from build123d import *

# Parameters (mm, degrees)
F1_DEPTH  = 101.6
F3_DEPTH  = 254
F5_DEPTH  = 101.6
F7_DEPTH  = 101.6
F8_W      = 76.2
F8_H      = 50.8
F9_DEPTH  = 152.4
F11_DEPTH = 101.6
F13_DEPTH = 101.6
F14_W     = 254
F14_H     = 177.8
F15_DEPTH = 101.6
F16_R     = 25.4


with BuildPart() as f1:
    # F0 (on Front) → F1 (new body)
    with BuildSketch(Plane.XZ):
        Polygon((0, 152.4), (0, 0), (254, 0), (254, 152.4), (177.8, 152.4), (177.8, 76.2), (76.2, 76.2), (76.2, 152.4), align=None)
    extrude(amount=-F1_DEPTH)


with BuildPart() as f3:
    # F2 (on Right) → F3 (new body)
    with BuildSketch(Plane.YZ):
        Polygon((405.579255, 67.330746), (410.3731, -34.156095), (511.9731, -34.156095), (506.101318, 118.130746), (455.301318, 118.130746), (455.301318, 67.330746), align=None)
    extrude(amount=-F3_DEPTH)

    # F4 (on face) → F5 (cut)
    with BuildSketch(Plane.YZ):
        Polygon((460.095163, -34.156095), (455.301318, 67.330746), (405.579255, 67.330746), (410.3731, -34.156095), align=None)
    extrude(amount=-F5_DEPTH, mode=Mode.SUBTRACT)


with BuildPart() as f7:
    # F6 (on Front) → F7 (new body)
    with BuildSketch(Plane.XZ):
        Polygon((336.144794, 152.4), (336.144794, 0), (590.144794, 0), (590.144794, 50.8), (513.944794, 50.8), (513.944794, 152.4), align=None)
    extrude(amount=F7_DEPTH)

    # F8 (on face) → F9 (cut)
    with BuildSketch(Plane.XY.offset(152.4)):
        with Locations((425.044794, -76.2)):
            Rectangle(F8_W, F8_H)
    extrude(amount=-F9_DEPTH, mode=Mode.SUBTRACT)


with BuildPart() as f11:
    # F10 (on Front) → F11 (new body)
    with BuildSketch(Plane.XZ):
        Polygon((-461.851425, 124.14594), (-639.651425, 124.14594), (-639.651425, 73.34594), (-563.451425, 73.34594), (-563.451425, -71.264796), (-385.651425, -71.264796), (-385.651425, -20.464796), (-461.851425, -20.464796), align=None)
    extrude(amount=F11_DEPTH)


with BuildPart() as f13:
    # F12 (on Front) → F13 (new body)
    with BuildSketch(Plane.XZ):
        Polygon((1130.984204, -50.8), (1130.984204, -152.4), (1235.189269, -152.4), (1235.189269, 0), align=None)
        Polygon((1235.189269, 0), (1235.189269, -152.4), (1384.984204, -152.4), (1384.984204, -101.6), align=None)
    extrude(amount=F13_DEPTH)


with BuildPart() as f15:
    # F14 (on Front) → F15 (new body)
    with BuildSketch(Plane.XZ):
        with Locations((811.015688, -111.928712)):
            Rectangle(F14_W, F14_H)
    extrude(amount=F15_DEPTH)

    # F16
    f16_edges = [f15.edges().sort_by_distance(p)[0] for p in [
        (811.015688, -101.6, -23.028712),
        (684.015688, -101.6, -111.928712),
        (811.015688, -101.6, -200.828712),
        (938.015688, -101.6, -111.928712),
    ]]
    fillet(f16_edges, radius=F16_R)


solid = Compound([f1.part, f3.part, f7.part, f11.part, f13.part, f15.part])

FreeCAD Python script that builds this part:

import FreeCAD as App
import Part
import Sketcher

V = App.Vector
Q = App.Units.Quantity


def edges_at(feature, points):
    """Names of the edges that pass closest to the given points."""
    edges = feature.Shape.Edges
    near = lambda p: min(range(len(edges)), key=lambda i: edges[i].distToShape(Part.Vertex(*p))[0])
    return sorted({f"Edge{near(p) + 1}" for p in points})


def add_polygon(sketch, points):
    """Adds a closed chain of lines whose ends are joined by coincident constraints."""
    first, n = sketch.GeometryCount, len(points)
    for a, b in zip(points, points[1:] + points[:1]):
        sketch.addGeometry(Part.LineSegment(App.Vector(*a, 0), App.Vector(*b, 0)), False)
    for i in range(n):
        sketch.addConstraint(Sketcher.Constraint("Coincident", first + i, 2, first + (i + 1) % n, 1))

doc = App.newDocument("Part")
body = doc.addObject("PartDesign::Body", "Body")

sketch1 = body.newObject("Sketcher::SketchObject", "Sketch")
sketch1.AttachmentSupport = (doc.getObject("XZ_Plane"), [""])
sketch1.MapMode = "FlatFace"
add_polygon(sketch1, [(0, 152), (0, 0), (254, 0), (254, 152), (178, 152), (178, 76), (76, 76), (76, 152)])
sketch1.addConstraint([
    Sketcher.Constraint("Vertical", 0),
    Sketcher.Constraint("Horizontal", 1),
    Sketcher.Constraint("Vertical", 2),
    Sketcher.Constraint("Horizontal", 3),
    Sketcher.Constraint("Vertical", 4),
    Sketcher.Constraint("Horizontal", 5),
    Sketcher.Constraint("Vertical", 6),
    Sketcher.Constraint("Horizontal", 7),
    Sketcher.Constraint("Coincident", 0, 2, -1, 1),
    Sketcher.Constraint("Horizontal", 3, 2, 6, 2),
    Sketcher.Constraint("Equal", 3, 7),
    Sketcher.Constraint("Equal", 7, 4),
    Sketcher.Constraint("DistanceX", 1, 1, 1, 2, Q("10 in")),
    Sketcher.Constraint("DistanceX", 3, 2, 3, 1, Q("3 in")),
    Sketcher.Constraint("DistanceY", 0, 2, 0, 1, Q("6 in")),
])
pad1 = body.newObject("PartDesign::Pad", "Pad")
pad1.Profile = sketch1
pad1.Length = Q("4 in")
pad1.Reversed = True
body2 = doc.addObject("PartDesign::Body", "Body001")

sketch2 = body2.newObject("Sketcher::SketchObject", "Sketch001")
sketch2.AttachmentSupport = (doc.getObject("YZ_Plane001"), [""])
sketch2.MapMode = "FlatFace"
add_polygon(sketch2, [(406, 67), (410, -34), (512, -34), (506, 118), (455, 118), (455, 67)])
sketch2.addConstraint([
    Sketcher.Constraint("Horizontal", 1),
    Sketcher.Constraint("Horizontal", 3),
    Sketcher.Constraint("Vertical", 4),
    Sketcher.Constraint("Horizontal", 5),
    Sketcher.Constraint("Equal", 3, 4),
    Sketcher.Constraint("DistanceX", 1, 1, 1, 2, Q("4 in")),
    Sketcher.Constraint("DistanceX", 3, 2, 3, 1, Q("2 in")),
    Sketcher.Constraint("Distance", 0, Q("4 in")),
    Sketcher.Constraint("Distance", 2, Q("6 in")),
    Sketcher.Constraint("DistanceX", -1, 1, 0, 2, Q("410.3731 mm")),
    Sketcher.Constraint("DistanceX", 5, 2, 5, 1, Q("49.722063 mm")),
    Sketcher.Constraint("DistanceY", 0, 2, -1, 1, Q("34.156095 mm")),
])
pad2 = body2.newObject("PartDesign::Pad", "Pad001")
pad2.Profile = sketch2
pad2.Length = Q("10 in")
pad2.Reversed = True

sketch3 = body2.newObject("Sketcher::SketchObject", "Sketch002")
sketch3.AttachmentSupport = (doc.getObject("YZ_Plane001"), [""])
sketch3.MapMode = "FlatFace"
add_polygon(sketch3, [(460, -34), (455, 67), (406, 67), (410, -34)])
sketch3.addConstraint([
    Sketcher.Constraint("Horizontal", 1),
    Sketcher.Constraint("Horizontal", 3),
    Sketcher.Constraint("Parallel", 0, 2),
    Sketcher.Constraint("Distance", 0, Q("4 in")),
    Sketcher.Constraint("DistanceX", -1, 1, 2, 2, Q("410.3731 mm")),
    Sketcher.Constraint("DistanceX", 1, 2, 1, 1, Q("49.722063 mm")),
    Sketcher.Constraint("DistanceX", -1, 1, 0, 2, Q("455.301318 mm")),
    Sketcher.Constraint("DistanceY", -1, 1, 0, 2, Q("67.330746 mm")),
])
pocket1 = body2.newObject("PartDesign::Pocket", "Pocket")
pocket1.Profile = sketch3
pocket1.Length = Q("4 in")
body3 = doc.addObject("PartDesign::Body", "Body002")

sketch4 = body3.newObject("Sketcher::SketchObject", "Sketch003")
sketch4.AttachmentSupport = (doc.getObject("XZ_Plane002"), [""])
sketch4.MapMode = "FlatFace"
add_polygon(sketch4, [(336, 152), (336, 0), (590, 0), (590, 51), (514, 51), (514, 152)])
sketch4.addConstraint([
    Sketcher.Constraint("Vertical", 0),
    Sketcher.Constraint("Horizontal", 1),
    Sketcher.Constraint("Vertical", 2),
    Sketcher.Constraint("Horizontal", 3),
    Sketcher.Constraint("Vertical", 4),
    Sketcher.Constraint("Horizontal", 5),
    Sketcher.Constraint("PointOnObject", 0, 2, -1),
    Sketcher.Constraint("DistanceX", 1, 1, 1, 2, Q("10 in")),
    Sketcher.Constraint("DistanceX", 3, 2, 3, 1, Q("3 in")),
    Sketcher.Constraint("DistanceY", 0, 2, 0, 1, Q("6 in")),
    Sketcher.Constraint("DistanceY", 2, 1, 2, 2, Q("2 in")),
    Sketcher.Constraint("DistanceX", -1, 1, 0, 2, Q("336.144794 mm")),
])
pad3 = body3.newObject("PartDesign::Pad", "Pad002")
pad3.Profile = sketch4
pad3.Length = Q("4 in")

sketch5 = body3.newObject("Sketcher::SketchObject", "Sketch004")
sketch5.AttachmentSupport = (doc.getObject("XY_Plane002"), [""])
sketch5.MapMode = "FlatFace"
sketch5.AttachmentOffset = App.Placement(V(0, 0, 6 * 25.4), App.Rotation())
add_polygon(sketch5, [(387, -51), (387, -102), (463, -102), (463, -51)])
sketch5.addConstraint([
    Sketcher.Constraint("Vertical", 0),
    Sketcher.Constraint("Horizontal", 1),
    Sketcher.Constraint("Vertical", 2),
    Sketcher.Constraint("Horizontal", 3),
    Sketcher.Constraint("DistanceX", 1, 1, 1, 2, Q("3 in")),
    Sketcher.Constraint("DistanceY", 0, 2, 0, 1, Q("2 in")),
    Sketcher.Constraint("DistanceY", 0, 2, -1, 1, Q("4 in")),
    Sketcher.Constraint("DistanceX", -1, 1, 0, 2, Q("386.944794 mm")),
])
pocket2 = body3.newObject("PartDesign::Pocket", "Pocket001")
pocket2.Profile = sketch5
pocket2.Length = Q("6 in")
body4 = doc.addObject("PartDesign::Body", "Body003")

sketch6 = body4.newObject("Sketcher::SketchObject", "Sketch005")
sketch6.AttachmentSupport = (doc.getObject("XZ_Plane003"), [""])
sketch6.MapMode = "FlatFace"
add_polygon(sketch6, [(-462, 124), (-640, 124), (-640, 73), (-563, 73), (-563, -71), (-386, -71), (-386, -20), (-462, -20)])
sketch6.addConstraint([
    Sketcher.Constraint("Horizontal", 0),
    Sketcher.Constraint("Vertical", 1),
    Sketcher.Constraint("Horizontal", 2),
    Sketcher.Constraint("Vertical", 3),
    Sketcher.Constraint("Horizontal", 4),
    Sketcher.Constraint("Vertical", 5),
    Sketcher.Constraint("Horizontal", 6),
    Sketcher.Constraint("Vertical", 7),
    Sketcher.Constraint("Equal", 0, 4),
    Sketcher.Constraint("Equal", 1, 5),
    Sketcher.Constraint("DistanceX", 0, 2, 0, 1, Q("7 in")),
    Sketcher.Constraint("DistanceX", 2, 1, 2, 2, Q("3 in")),
    Sketcher.Constraint("DistanceY", 1, 2, 1, 1, Q("2 in")),
    Sketcher.Constraint("DistanceY", 3, 2, 3, 1, Q("144.610736 mm")),
    Sketcher.Constraint("DistanceY", -1, 1, 0, 2, Q("124.14594 mm")),
    Sketcher.Constraint("DistanceX", 0, 2, -1, 1, Q("639.651425 mm")),
])
pad4 = body4.newObject("PartDesign::Pad", "Pad003")
pad4.Profile = sketch6
pad4.Length = Q("4 in")
body5 = doc.addObject("PartDesign::Body", "Body004")

sketch7 = body5.newObject("Sketcher::SketchObject", "Sketch006")
sketch7.AttachmentSupport = (doc.getObject("XZ_Plane004"), [""])
sketch7.MapMode = "FlatFace"
add_polygon(sketch7, [(1131, -51), (1131, -152), (1385, -152), (1385, -102), (1235, 0)])
sketch7.addConstraint([
    Sketcher.Constraint("Vertical", 0),
    Sketcher.Constraint("Horizontal", 1),
    Sketcher.Constraint("Vertical", 2),
    Sketcher.Constraint("PointOnObject", 3, 2, -1),
    Sketcher.Constraint("DistanceX", 1, 1, 1, 2, Q("10 in")),
    Sketcher.Constraint("DistanceY", 0, 2, 0, 1, Q("4 in")),
    Sketcher.Constraint("DistanceY", 2, 1, 2, 2, Q("2 in")),
    Sketcher.Constraint("DistanceY", 0, 2, -1, 1, Q("6 in")),
    Sketcher.Constraint("Distance", 3, Q("181.000228 mm")),
    Sketcher.Constraint("DistanceX", -1, 1, 3, 2, Q("1235.189269 mm")),
])
pad5 = body5.newObject("PartDesign::Pad", "Pad004")
pad5.Profile = sketch7
pad5.Length = Q("4 in")
body6 = doc.addObject("PartDesign::Body", "Body005")

sketch8 = body6.newObject("Sketcher::SketchObject", "Sketch007")
sketch8.AttachmentSupport = (doc.getObject("XZ_Plane005"), [""])
sketch8.MapMode = "FlatFace"
add_polygon(sketch8, [(684, -23), (684, -201), (938, -201), (938, -23)])
sketch8.addConstraint([
    Sketcher.Constraint("Vertical", 0),
    Sketcher.Constraint("Horizontal", 1),
    Sketcher.Constraint("Vertical", 2),
    Sketcher.Constraint("Horizontal", 3),
    Sketcher.Constraint("DistanceX", 1, 1, 1, 2, Q("10 in")),
    Sketcher.Constraint("DistanceY", 0, 2, 0, 1, Q("7 in")),
    Sketcher.Constraint("DistanceX", -1, 1, 0, 2, Q("684.015688 mm")),
    Sketcher.Constraint("DistanceY", 0, 2, -1, 1, Q("200.828712 mm")),
])
pad6 = body6.newObject("PartDesign::Pad", "Pad005")
pad6.Profile = sketch8
pad6.Length = Q("4 in")
doc.recompute()

fillet = body6.newObject("PartDesign::Fillet", "Fillet")
fillet.Base = (pad6, edges_at(pad6, [
    (811.016, -101.6, -23.029),
    (684.016, -101.6, -111.929),
    (811.016, -101.6, -200.829),
    (938.016, -101.6, -111.929),
]))
fillet.Radius = Q("1 in")

doc.recompute()
